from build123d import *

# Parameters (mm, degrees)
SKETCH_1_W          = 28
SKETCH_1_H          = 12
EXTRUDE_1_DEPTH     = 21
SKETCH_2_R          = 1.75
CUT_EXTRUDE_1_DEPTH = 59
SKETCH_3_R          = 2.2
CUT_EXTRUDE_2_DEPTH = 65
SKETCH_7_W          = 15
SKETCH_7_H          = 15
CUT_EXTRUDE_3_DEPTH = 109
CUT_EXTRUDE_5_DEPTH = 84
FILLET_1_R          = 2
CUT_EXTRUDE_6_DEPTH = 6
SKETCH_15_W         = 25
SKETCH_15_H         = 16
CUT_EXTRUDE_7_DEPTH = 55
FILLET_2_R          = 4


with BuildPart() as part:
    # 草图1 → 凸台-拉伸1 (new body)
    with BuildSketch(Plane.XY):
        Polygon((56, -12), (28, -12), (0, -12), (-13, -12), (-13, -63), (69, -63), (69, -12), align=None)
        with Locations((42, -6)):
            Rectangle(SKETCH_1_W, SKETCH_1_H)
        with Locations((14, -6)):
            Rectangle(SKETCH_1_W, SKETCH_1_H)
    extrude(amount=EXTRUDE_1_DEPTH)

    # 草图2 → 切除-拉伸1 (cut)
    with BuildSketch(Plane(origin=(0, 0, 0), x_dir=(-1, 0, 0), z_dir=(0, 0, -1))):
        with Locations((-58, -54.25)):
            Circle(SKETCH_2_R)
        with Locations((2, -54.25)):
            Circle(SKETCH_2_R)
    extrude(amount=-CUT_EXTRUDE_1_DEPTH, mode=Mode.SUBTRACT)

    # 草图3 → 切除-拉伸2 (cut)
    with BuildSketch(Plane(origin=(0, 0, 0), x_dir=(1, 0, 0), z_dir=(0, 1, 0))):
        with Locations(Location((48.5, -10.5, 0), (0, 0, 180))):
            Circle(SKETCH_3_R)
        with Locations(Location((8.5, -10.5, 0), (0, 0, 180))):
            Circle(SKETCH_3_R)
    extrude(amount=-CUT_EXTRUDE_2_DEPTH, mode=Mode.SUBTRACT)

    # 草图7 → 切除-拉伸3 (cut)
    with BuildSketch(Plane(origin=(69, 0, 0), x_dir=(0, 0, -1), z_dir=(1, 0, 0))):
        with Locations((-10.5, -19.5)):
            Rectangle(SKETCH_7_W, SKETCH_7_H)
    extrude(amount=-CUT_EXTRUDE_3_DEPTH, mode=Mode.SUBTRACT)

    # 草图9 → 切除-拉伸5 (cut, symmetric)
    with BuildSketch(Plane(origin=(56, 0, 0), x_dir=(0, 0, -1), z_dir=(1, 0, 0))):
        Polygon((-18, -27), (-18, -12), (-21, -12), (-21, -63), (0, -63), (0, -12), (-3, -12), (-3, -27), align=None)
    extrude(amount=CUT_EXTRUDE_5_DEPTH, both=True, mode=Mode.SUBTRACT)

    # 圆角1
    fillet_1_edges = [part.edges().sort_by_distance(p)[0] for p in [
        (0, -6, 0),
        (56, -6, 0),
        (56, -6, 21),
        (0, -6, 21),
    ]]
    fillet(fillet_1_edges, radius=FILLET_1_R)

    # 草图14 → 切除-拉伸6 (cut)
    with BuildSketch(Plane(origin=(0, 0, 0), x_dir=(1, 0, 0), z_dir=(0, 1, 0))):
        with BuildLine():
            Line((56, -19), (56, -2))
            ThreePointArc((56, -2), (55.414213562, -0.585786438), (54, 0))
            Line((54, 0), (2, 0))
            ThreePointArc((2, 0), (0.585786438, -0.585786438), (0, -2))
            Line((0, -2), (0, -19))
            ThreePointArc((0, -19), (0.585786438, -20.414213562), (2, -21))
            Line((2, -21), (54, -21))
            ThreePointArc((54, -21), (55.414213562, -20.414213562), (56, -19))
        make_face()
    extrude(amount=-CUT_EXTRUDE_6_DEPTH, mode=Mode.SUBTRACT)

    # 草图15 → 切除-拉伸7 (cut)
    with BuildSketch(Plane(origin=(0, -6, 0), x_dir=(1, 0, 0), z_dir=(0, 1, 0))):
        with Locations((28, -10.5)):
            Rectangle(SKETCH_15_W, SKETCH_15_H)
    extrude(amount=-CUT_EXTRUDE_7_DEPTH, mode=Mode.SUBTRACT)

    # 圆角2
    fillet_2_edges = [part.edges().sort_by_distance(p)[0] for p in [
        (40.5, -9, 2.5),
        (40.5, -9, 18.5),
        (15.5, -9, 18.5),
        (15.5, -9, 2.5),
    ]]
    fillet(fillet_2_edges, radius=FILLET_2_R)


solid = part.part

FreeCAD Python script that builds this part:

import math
import FreeCAD as App
import Part
import Sketcher


def edges_at(feature, points):
    """Names of the edges that pass closest to the given points."""
    edges = feature.Shape.Edges
    near = lambda p: min(range(len(edges)), key=lambda i: edges[i].distToShape(Part.Vertex(*p))[0])
    return sorted({f"Edge{near(p) + 1}" for p in points})

doc = App.newDocument("Part")
params = doc.addObject("Spreadsheet::Sheet", "Params")
for row, (alias, value) in enumerate([
    ("sketch1_width", "82 mm"),
    ("sketch1_width2", "13 mm"),
    ("sketch1_height", "51 mm"),
    ("sketch1_height2", "12 mm"),
    ("pad1_length", "21 mm"),
    ("sketch2_diameter", "3.5 mm"),
    ("pocket1_length", "59 mm"),
    ("sketch3_diameter", "4.4 mm"),
    ("pocket2_length", "65 mm"),
    ("sketch4_width", "15 mm"),
    ("pocket3_length", "109 mm"),
    ("sketch5_width", "15 mm"),
    ("sketch5_width2", "51 mm"),
    ("sketch5_height", "3 mm"),
    ("pocket4_length", "168 mm"),
    ("fillet_radius", "2 mm"),
    ("sketch6_radius", "2 mm"),
    ("sketch6_width", "52 mm"),
    ("sketch6_height", "17 mm"),
    ("pocket5_length", "6 mm"),
    ("sketch7_width", "25 mm"),
    ("sketch7_height", "16 mm"),
    ("pocket6_length", "55 mm"),
    ("fillet2_radius", "4 mm"),
], start=1):
    params.set(f"A{row}", alias)
    params.set(f"B{row}", "=" + value)
    params.setAlias(f"B{row}", alias)

body = doc.addObject("PartDesign::Body", "Body")

sketch1 = doc.addObject("Sketcher::SketchObject", "Sketch")
body.addObject(sketch1)
sketch1.AttachmentSupport = (doc.XY_Plane, [""])
sketch1.MapMode = "FlatFace"
sketch1.addGeometry([
    Part.LineSegment(App.Vector(-13, -12, 0), App.Vector(-13, -63, 0)),
    Part.LineSegment(App.Vector(-13, -63, 0), App.Vector(69, -63, 0)),
    Part.LineSegment(App.Vector(69, -63, 0), App.Vector(69, -12, 0)),
    Part.LineSegment(App.Vector(69, -12, 0), App.Vector(56, -12, 0)),
    Part.LineSegment(App.Vector(56, -12, 0), App.Vector(56, 0, 0)),
    Part.LineSegment(App.Vector(56, 0, 0), App.Vector(0, 0, 0)),
    Part.LineSegment(App.Vector(0, 0, 0), App.Vector(0, -12, 0)),
    Part.LineSegment(App.Vector(0, -12, 0), App.Vector(-13, -12, 0)),
], False)
sketch1.addConstraint([
    Sketcher.Constraint("Coincident", 0, 2, 1, 1),
    Sketcher.Constraint("Coincident", 1, 2, 2, 1),
    Sketcher.Constraint("Coincident", 2, 2, 3, 1),
    Sketcher.Constraint("Coincident", 3, 2, 4, 1),
    Sketcher.Constraint("Coincident", 4, 2, 5, 1),
    Sketcher.Constraint("Coincident", 5, 2, 6, 1),
    Sketcher.Constraint("Coincident", 6, 2, 7, 1),
    Sketcher.Constraint("Coincident", 7, 2, 0, 1),
    Sketcher.Constraint("Vertical", 0),
    Sketcher.Constraint("Horizontal", 1),
    Sketcher.Constraint("Vertical", 2),
    Sketcher.Constraint("Horizontal", 3),
    Sketcher.Constraint("Vertical", 4),
    Sketcher.Constraint("Horizontal", 5),
    Sketcher.Constraint("Vertical", 6),
    Sketcher.Constraint("Horizontal", 7),
    Sketcher.Constraint("Coincident", 5, 2, -1, 1),
    Sketcher.Constraint("Horizontal", 3, 2, 6, 2),
    Sketcher.Constraint("Equal", 3, 7),
    Sketcher.Constraint("DistanceX", 1, 1, 1, 2, 82.0),
    Sketcher.Constraint("DistanceX", 3, 2, 3, 1, 13.0),
    Sketcher.Constraint("DistanceY", 0, 2, 0, 1, 51.0),
    Sketcher.Constraint("DistanceY", 4, 1, 4, 2, 12.0),
])
sketch1.setExpression("Constraints[19]", "Params.sketch1_width")
sketch1.setExpression("Constraints[20]", "Params.sketch1_width2")
sketch1.setExpression("Constraints[21]", "Params.sketch1_height")
sketch1.setExpression("Constraints[22]", "Params.sketch1_height2")
pad1 = doc.addObject("PartDesign::Pad", "Pad")
body.addObject(pad1)
pad1.Profile = sketch1
pad1.setExpression("Length", "Params.pad1_length")

sketch2 = doc.addObject("Sketcher::SketchObject", "Sketch001")
body.addObject(sketch2)
sketch2.AttachmentSupport = (doc.XY_Plane, [""])
sketch2.MapMode = "FlatFace"
sketch2.addGeometry([
    Part.Circle(App.Vector(58, -54.2, 0), App.Vector(0, 0, 1), 1.8),
    Part.Circle(App.Vector(-2, -54.2, 0), App.Vector(0, 0, 1), 1.8),
], False)
sketch2.addConstraint([
    Sketcher.Constraint("Equal", 0, 1),
    Sketcher.Constraint("Horizontal", 0, 3, 1, 3),
    Sketcher.Constraint("Diameter", 0, 3.5),
    Sketcher.Constraint("DistanceX", -1, 1, 0, 3, 58.0),
    Sketcher.Constraint("DistanceX", 1, 3, -1, 1, 2.0),
    Sketcher.Constraint("DistanceY", 0, 3, -1, 1, 54.25),
])
sketch2.setExpression("Constraints[2]", "Params.sketch2_diameter")
pocket1 = doc.addObject("PartDesign::Pocket", "Pocket")
body.addObject(pocket1)
pocket1.Profile = sketch2
pocket1.setExpression("Length", "Params.pocket1_length")
pocket1.Reversed = True

sketch3 = doc.addObject("Sketcher::SketchObject", "Sketch002")
body.addObject(sketch3)
sketch3.AttachmentSupport = (doc.XZ_Plane, [""])
sketch3.MapMode = "FlatFace"
sketch3.addGeometry([
    Part.Circle(App.Vector(48.5, 10.5, 0), App.Vector(0, 0, 1), 2.2),
    Part.Circle(App.Vector(8.5, 10.5, 0), App.Vector(0, 0, 1), 2.2),
], False)
sketch3.addConstraint([
    Sketcher.Constraint("Equal", 0, 1),
    Sketcher.Constraint("Horizontal", 0, 3, 1, 3),
    Sketcher.Constraint("Diameter", 0, 4.4),
    Sketcher.Constraint("DistanceX", 1, 3, 0, 3, 40.0),
    Sketcher.Constraint("DistanceX", -1, 1, 0, 3, 48.5),
    Sketcher.Constraint("DistanceY", -1, 1, 0, 3, 10.5),
])
sketch3.setExpression("Constraints[2]", "Params.sketch3_diameter")
pocket2 = doc.addObject("PartDesign::Pocket", "Pocket001")
body.addObject(pocket2)
pocket2.Profile = sketch3
pocket2.setExpression("Length", "Params.pocket2_length")
pocket2.Reversed = True

sketch4 = doc.addObject("Sketcher::SketchObject", "Sketch003")
body.addObject(sketch4)
sketch4.AttachmentSupport = (doc.YZ_Plane, [""])
sketch4.MapMode = "FlatFace"
sketch4.AttachmentOffset = App.Placement(App.Vector(0, 0, 69), App.Rotation())
sketch4.addGeometry([
    Part.LineSegment(App.Vector(-12, 18, 0), App.Vector(-27, 18, 0)),
    Part.LineSegment(App.Vector(-27, 18, 0), App.Vector(-27, 3, 0)),
    Part.LineSegment(App.Vector(-27, 3, 0), App.Vector(-12, 3, 0)),
    Part.LineSegment(App.Vector(-12, 3, 0), App.Vector(-12, 18, 0)),
], False)
sketch4.addConstraint([
    Sketcher.Constraint("Coincident", 0, 2, 1, 1),
    Sketcher.Constraint("Coincident", 1, 2, 2, 1),
    Sketcher.Constraint("Coincident", 2, 2, 3, 1),
    Sketcher.Constraint("Coincident", 3, 2, 0, 1),
    Sketcher.Constraint("Horizontal", 0),
    Sketcher.Constraint("Vertical", 1),
    Sketcher.Constraint("Horizontal", 2),
    Sketcher.Constraint("Vertical", 3),
    Sketcher.Constraint("Equal", 2, 1),
    Sketcher.Constraint("DistanceX", 0, 2, 0, 1, 15.0),
    Sketcher.Constraint("DistanceX", 0, 2, -1, 1, 27.0),
    Sketcher.Constraint("DistanceY", -1, 1, 0, 2, 18.0),
])
sketch4.setExpression("Constraints[9]", "Params.sketch4_width")
pocket3 = doc.addObject("PartDesign::Pocket", "Pocket002")
body.addObject(pocket3)
pocket3.Profile = sketch4
pocket3.setExpression("Length", "Params.pocket3_length")

sketch5 = doc.addObject("Sketcher::SketchObject", "Sketch004")
body.addObject(sketch5)
sketch5.AttachmentSupport = (doc.YZ_Plane, [""])
sketch5.MapMode = "FlatFace"
sketch5.AttachmentOffset = App.Placement(App.Vector(0, 0, 56), App.Rotation())
sketch5.addGeometry([
    Part.LineSegment(App.Vector(-27, 18, 0), App.Vector(-12, 18, 0)),
    Part.LineSegment(App.Vector(-12, 18, 0), App.Vector(-12, 21, 0)),
    Part.LineSegment(App.Vector(-12, 21, 0), App.Vector(-63, 21, 0)),
    Part.LineSegment(App.Vector(-63, 21, 0), App.Vector(-63, 0, 0)),
    Part.LineSegment(App.Vector(-63, 0, 0), App.Vector(-12, 0, 0)),
    Part.LineSegment(App.Vector(-12, 0, 0), App.Vector(-12, 3, 0)),
    Part.LineSegment(App.Vector(-12, 3, 0), App.Vector(-27, 3, 0)),
    Part.LineSegment(App.Vector(-27, 3, 0), App.Vector(-27, 18, 0)),
], False)
sketch5.addConstraint([
    Sketcher.Constraint("Coincident", 0, 2, 1, 1),
    Sketcher.Constraint("Coincident", 1, 2, 2, 1),
    Sketcher.Constraint("Coincident", 2, 2, 3, 1),
    Sketcher.Constraint("Coincident", 3, 2, 4, 1),
    Sketcher.Constraint("Coincident", 4, 2, 5, 1),
    Sketcher.Constraint("Coincident", 5, 2, 6, 1),
    Sketcher.Constraint("Coincident", 6, 2, 7, 1),
    Sketcher.Constraint("Coincident", 7, 2, 0, 1),
    Sketcher.Constraint("Horizontal", 0),
    Sketcher.Constraint("Vertical", 1),
    Sketcher.Constraint("Horizontal", 2),
    Sketcher.Constraint("Vertical", 3),
    Sketcher.Constraint("Horizontal", 4),
    Sketcher.Constraint("Vertical", 5),
    Sketcher.Constraint("Horizontal", 6),
    Sketcher.Constraint("Vertical", 7),
    Sketcher.Constraint("PointOnObject", 3, 2, -1),
    Sketcher.Constraint("Vertical", 1, 2, 4, 2),
    Sketcher.Constraint("Equal", 1, 5),
    Sketcher.Constraint("Equal", 6, 7),
    Sketcher.Constraint("DistanceX", 0, 1, 0, 2, 15.0),
    Sketcher.Constraint("DistanceX", 2, 2, 2, 1, 51.0),
    Sketcher.Constraint("DistanceY", 1, 1, 1, 2, 3.0),
    Sketcher.Constraint("DistanceX", 0, 2, -1, 1, 12.0),
])
sketch5.setExpression("Constraints[20]", "Params.sketch5_width")
sketch5.setExpression("Constraints[21]", "Params.sketch5_width2")
sketch5.setExpression("Constraints[22]", "Params.sketch5_height")
pocket4 = doc.addObject("PartDesign::Pocket", "Pocket003")
body.addObject(pocket4)
pocket4.Profile = sketch5
pocket4.setExpression("Length", "Params.pocket4_length")
pocket4.Midplane = True
doc.recompute()

fillet = doc.addObject("PartDesign::Fillet", "Fillet")
body.addObject(fillet)
fillet.Base = (pocket4, edges_at(pocket4, [
    (0, -6, 0),
    (56, -6, 0),
    (56, -6, 21),
    (0, -6, 21),
]))
fillet.setExpression("Radius", "Params.fillet_radius")

sketch6 = doc.addObject("Sketcher::SketchObject", "Sketch005")
body.addObject(sketch6)
sketch6.AttachmentSupport = (doc.XZ_Plane, [""])
sketch6.MapMode = "FlatFace"
sketch6.addGeometry([
    Part.LineSegment(App.Vector(56, 19, 0), App.Vector(56, 2, 0)),
    Part.ArcOfCircle(Part.Circle(App.Vector(54, 2, 0), App.Vector(0, 0, 1), 2), math.radians(-90), math.radians(0)),
    Part.LineSegment(App.Vector(54, 0, 0), App.Vector(2, 0, 0)),
    Part.ArcOfCircle(Part.Circle(App.Vector(2, 2, 0), App.Vector(0, 0, 1), 2), math.radians(-180), math.radians(-90)),
    Part.LineSegment(App.Vector(0, 2, 0), App.Vector(0, 19, 0)),
    Part.ArcOfCircle(Part.Circle(App.Vector(2, 19, 0), App.Vector(0, 0, 1), 2), math.radians(90), math.radians(180)),
    Part.LineSegment(App.Vector(2, 21, 0), App.Vector(54, 21, 0)),
    Part.ArcOfCircle(Part.Circle(App.Vector(54, 19, 0), App.Vector(0, 0, 1), 2), math.radians(0), math.radians(90)),
], False)
sketch6.addConstraint([
    Sketcher.Constraint("Tangent", 0, 2, 1, 2),
    Sketcher.Constraint("Tangent", 1, 1, 2, 1),
    Sketcher.Constraint("Tangent", 2, 2, 3, 2),
    Sketcher.Constraint("Tangent", 3, 1, 4, 1),
    Sketcher.Constraint("Tangent", 4, 2, 5, 2),
    Sketcher.Constraint("Tangent", 5, 1, 6, 1),
    Sketcher.Constraint("Tangent", 6, 2, 7, 2),
    Sketcher.Constraint("Tangent", 7, 1, 0, 1),
    Sketcher.Constraint("Vertical", 0),
    Sketcher.Constraint("Horizontal", 2),
    Sketcher.Constraint("Vertical", 4),
    Sketcher.Constraint("Horizontal", 6),
    Sketcher.Constraint("Equal", 1, 3),
    Sketcher.Constraint("Equal", 3, 5),
    Sketcher.Constraint("Equal", 5, 7),
    Sketcher.Constraint("PointOnObject", 1, 1, -1),
    Sketcher.Constraint("PointOnObject", 3, 1, -2),
    Sketcher.Constraint("Radius", 1, 2.0),
    Sketcher.Constraint("DistanceX", 2, 2, 2, 1, 52.0),
    Sketcher.Constraint("DistanceY", 0, 2, 0, 1, 17.0),
])
sketch6.setExpression("Constraints[17]", "Params.sketch6_radius")
sketch6.setExpression("Constraints[18]", "Params.sketch6_width")
sketch6.setExpression("Constraints[19]", "Params.sketch6_height")
pocket5 = doc.addObject("PartDesign::Pocket", "Pocket004")
body.addObject(pocket5)
pocket5.Profile = sketch6
pocket5.setExpression("Length", "Params.pocket5_length")
pocket5.Reversed = True

sketch7 = doc.addObject("Sketcher::SketchObject", "Sketch006")
body.addObject(sketch7)
sketch7.AttachmentSupport = (doc.XZ_Plane, [""])
sketch7.MapMode = "FlatFace"
sketch7.AttachmentOffset = App.Placement(App.Vector(0, 0, 6), App.Rotation())
sketch7.addGeometry([
    Part.LineSegment(App.Vector(16, 2, 0), App.Vector(16, 18, 0)),
    Part.LineSegment(App.Vector(16, 18, 0), App.Vector(40, 18, 0)),
    Part.LineSegment(App.Vector(40, 18, 0), App.Vector(40, 2, 0)),
    Part.LineSegment(App.Vector(40, 2, 0), App.Vector(16, 2, 0)),
], False)
sketch7.addConstraint([
    Sketcher.Constraint("Coincident", 0, 2, 1, 1),
    Sketcher.Constraint("Coincident", 1, 2, 2, 1),
    Sketcher.Constraint("Coincident", 2, 2, 3, 1),
    Sketcher.Constraint("Coincident", 3, 2, 0, 1),
    Sketcher.Constraint("Vertical", 0),
    Sketcher.Constraint("Horizontal", 1),
    Sketcher.Constraint("Vertical", 2),
    Sketcher.Constraint("Horizontal", 3),
    Sketcher.Constraint("DistanceX", 1, 1, 1, 2, 25.0),
    Sketcher.Constraint("DistanceY", 0, 1, 0, 2, 16.0),
    Sketcher.Constraint("DistanceX", -1, 1, 0, 2, 15.5),
    Sketcher.Constraint("DistanceY", -1, 1, 0, 2, 18.5),
])
sketch7.setExpression("Constraints[8]", "Params.sketch7_width")
sketch7.setExpression("Constraints[9]", "Params.sketch7_height")
pocket6 = doc.addObject("PartDesign::Pocket", "Pocket005")
body.addObject(pocket6)
pocket6.Profile = sketch7
pocket6.setExpression("Length", "Params.pocket6_length")
pocket6.Reversed = True
doc.recompute()

fillet2 = doc.addObject("PartDesign::Fillet", "Fillet001")
body.addObject(fillet2)
fillet2.Base = (pocket6, edges_at(pocket6, [
    (40.5, -9, 2.5),
    (40.5, -9, 18.5),
    (15.5, -9, 18.5),
    (15.5, -9, 2.5),
]))
fillet2.setExpression("Radius", "Params.fillet2_radius")

doc.recompute()
